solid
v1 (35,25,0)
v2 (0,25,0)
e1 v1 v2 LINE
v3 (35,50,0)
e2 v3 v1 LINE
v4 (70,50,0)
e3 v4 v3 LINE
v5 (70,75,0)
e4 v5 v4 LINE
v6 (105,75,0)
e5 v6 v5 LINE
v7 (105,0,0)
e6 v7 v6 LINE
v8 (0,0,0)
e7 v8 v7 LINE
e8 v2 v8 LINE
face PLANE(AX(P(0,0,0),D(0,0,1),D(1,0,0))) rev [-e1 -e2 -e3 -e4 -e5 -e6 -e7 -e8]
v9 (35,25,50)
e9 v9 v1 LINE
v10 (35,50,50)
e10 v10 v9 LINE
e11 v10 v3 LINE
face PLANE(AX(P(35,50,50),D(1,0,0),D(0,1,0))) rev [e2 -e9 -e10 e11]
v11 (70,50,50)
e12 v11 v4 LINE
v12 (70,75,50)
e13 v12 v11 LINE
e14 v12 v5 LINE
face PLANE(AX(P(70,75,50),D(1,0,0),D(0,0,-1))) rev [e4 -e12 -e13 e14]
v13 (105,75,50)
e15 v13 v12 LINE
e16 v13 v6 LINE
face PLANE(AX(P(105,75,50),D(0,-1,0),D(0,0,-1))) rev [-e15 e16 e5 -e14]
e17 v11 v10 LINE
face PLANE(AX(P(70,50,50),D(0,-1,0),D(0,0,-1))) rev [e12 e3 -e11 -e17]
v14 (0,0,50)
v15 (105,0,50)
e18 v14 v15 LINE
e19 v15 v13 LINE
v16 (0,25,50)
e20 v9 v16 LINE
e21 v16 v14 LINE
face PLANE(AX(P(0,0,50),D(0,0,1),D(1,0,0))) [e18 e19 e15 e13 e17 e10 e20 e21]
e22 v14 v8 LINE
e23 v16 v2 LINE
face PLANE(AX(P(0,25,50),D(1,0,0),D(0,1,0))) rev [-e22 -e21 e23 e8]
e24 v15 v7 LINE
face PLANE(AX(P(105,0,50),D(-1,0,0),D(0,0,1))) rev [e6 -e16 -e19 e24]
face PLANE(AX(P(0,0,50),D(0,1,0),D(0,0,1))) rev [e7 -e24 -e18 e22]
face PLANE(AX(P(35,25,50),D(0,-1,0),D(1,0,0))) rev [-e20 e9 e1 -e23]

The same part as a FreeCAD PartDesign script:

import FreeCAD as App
import Part
import Sketcher
from FreeCAD import Vector


def add_polygon(sketch, points):
    """Adds a closed chain of lines whose ends are joined by coincident constraints."""
    first, n = sketch.GeometryCount, len(points)
    for a, b in zip(points, points[1:] + points[:1]):
        sketch.addGeometry(Part.LineSegment(App.Vector(*a, 0), App.Vector(*b, 0)), False)
    for i in range(n):
        sketch.addConstraint(Sketcher.Constraint("Coincident", first + i, 2, first + (i + 1) % n, 1))

doc = App.newDocument("Part")
params = doc.addObject("Spreadsheet::Sheet", "Params")
for row, (alias, value) in enumerate([
    ("sketch1_width", "105 mm"),
    ("sketch1_height", "75 mm"),
    ("pad1_length", "50 mm"),
], start=1):
    params.set(f"A{row}", alias)
    params.set(f"B{row}", "=" + value)
    params.setAlias(f"B{row}", alias)

body = doc.addObject("PartDesign::Body", "Body")

# Sketch on XY plane
sketch1 = doc.addObject("Sketcher::SketchObject", "Sketch")
body.addObject(sketch1)
sketch1.AttachmentSupport = (doc.XY_Plane, [""])
sketch1.MapMode = "FlatFace"
add_polygon(sketch1, [(0, 0), (105, 0), (105, 75), (70, 75), (70, 50), (35, 50), (35, 25), (0, 25)])  # lines 0-7
sketch1.addConstraint([
    Sketcher.Constraint("Horizontal", 0),
    Sketcher.Constraint("Vertical", 1),
    Sketcher.Constraint("Horizontal", 2),
    Sketcher.Constraint("Vertical", 3),
    Sketcher.Constraint("Horizontal", 4),
    Sketcher.Constraint("Vertical", 5),
    Sketcher.Constraint("Horizontal", 6),
    Sketcher.Constraint("Vertical", 7),
    Sketcher.Constraint("Coincident", 7, 2, -1, 1),
    Sketcher.Constraint("Equal", 2, 4),
    Sketcher.Constraint("Equal", 4, 6),
    Sketcher.Constraint("Equal", 3, 5),
    Sketcher.Constraint("Equal", 5, 7),
    Sketcher.Constraint("DistanceX", 0, 1, 0, 2, 105.0),
    Sketcher.Constraint("DistanceY", 1, 1, 1, 2, 75.0),
])
sketch1.setExpression("Constraints[21]", "Params.sketch1_width")
sketch1.setExpression("Constraints[22]", "Params.sketch1_height")
pad1 = doc.addObject("PartDesign::Pad", "Pad")
body.addObject(pad1)
pad1.Profile = sketch1
pad1.setExpression("Length", "Params.pad1_length")

doc.recompute()
